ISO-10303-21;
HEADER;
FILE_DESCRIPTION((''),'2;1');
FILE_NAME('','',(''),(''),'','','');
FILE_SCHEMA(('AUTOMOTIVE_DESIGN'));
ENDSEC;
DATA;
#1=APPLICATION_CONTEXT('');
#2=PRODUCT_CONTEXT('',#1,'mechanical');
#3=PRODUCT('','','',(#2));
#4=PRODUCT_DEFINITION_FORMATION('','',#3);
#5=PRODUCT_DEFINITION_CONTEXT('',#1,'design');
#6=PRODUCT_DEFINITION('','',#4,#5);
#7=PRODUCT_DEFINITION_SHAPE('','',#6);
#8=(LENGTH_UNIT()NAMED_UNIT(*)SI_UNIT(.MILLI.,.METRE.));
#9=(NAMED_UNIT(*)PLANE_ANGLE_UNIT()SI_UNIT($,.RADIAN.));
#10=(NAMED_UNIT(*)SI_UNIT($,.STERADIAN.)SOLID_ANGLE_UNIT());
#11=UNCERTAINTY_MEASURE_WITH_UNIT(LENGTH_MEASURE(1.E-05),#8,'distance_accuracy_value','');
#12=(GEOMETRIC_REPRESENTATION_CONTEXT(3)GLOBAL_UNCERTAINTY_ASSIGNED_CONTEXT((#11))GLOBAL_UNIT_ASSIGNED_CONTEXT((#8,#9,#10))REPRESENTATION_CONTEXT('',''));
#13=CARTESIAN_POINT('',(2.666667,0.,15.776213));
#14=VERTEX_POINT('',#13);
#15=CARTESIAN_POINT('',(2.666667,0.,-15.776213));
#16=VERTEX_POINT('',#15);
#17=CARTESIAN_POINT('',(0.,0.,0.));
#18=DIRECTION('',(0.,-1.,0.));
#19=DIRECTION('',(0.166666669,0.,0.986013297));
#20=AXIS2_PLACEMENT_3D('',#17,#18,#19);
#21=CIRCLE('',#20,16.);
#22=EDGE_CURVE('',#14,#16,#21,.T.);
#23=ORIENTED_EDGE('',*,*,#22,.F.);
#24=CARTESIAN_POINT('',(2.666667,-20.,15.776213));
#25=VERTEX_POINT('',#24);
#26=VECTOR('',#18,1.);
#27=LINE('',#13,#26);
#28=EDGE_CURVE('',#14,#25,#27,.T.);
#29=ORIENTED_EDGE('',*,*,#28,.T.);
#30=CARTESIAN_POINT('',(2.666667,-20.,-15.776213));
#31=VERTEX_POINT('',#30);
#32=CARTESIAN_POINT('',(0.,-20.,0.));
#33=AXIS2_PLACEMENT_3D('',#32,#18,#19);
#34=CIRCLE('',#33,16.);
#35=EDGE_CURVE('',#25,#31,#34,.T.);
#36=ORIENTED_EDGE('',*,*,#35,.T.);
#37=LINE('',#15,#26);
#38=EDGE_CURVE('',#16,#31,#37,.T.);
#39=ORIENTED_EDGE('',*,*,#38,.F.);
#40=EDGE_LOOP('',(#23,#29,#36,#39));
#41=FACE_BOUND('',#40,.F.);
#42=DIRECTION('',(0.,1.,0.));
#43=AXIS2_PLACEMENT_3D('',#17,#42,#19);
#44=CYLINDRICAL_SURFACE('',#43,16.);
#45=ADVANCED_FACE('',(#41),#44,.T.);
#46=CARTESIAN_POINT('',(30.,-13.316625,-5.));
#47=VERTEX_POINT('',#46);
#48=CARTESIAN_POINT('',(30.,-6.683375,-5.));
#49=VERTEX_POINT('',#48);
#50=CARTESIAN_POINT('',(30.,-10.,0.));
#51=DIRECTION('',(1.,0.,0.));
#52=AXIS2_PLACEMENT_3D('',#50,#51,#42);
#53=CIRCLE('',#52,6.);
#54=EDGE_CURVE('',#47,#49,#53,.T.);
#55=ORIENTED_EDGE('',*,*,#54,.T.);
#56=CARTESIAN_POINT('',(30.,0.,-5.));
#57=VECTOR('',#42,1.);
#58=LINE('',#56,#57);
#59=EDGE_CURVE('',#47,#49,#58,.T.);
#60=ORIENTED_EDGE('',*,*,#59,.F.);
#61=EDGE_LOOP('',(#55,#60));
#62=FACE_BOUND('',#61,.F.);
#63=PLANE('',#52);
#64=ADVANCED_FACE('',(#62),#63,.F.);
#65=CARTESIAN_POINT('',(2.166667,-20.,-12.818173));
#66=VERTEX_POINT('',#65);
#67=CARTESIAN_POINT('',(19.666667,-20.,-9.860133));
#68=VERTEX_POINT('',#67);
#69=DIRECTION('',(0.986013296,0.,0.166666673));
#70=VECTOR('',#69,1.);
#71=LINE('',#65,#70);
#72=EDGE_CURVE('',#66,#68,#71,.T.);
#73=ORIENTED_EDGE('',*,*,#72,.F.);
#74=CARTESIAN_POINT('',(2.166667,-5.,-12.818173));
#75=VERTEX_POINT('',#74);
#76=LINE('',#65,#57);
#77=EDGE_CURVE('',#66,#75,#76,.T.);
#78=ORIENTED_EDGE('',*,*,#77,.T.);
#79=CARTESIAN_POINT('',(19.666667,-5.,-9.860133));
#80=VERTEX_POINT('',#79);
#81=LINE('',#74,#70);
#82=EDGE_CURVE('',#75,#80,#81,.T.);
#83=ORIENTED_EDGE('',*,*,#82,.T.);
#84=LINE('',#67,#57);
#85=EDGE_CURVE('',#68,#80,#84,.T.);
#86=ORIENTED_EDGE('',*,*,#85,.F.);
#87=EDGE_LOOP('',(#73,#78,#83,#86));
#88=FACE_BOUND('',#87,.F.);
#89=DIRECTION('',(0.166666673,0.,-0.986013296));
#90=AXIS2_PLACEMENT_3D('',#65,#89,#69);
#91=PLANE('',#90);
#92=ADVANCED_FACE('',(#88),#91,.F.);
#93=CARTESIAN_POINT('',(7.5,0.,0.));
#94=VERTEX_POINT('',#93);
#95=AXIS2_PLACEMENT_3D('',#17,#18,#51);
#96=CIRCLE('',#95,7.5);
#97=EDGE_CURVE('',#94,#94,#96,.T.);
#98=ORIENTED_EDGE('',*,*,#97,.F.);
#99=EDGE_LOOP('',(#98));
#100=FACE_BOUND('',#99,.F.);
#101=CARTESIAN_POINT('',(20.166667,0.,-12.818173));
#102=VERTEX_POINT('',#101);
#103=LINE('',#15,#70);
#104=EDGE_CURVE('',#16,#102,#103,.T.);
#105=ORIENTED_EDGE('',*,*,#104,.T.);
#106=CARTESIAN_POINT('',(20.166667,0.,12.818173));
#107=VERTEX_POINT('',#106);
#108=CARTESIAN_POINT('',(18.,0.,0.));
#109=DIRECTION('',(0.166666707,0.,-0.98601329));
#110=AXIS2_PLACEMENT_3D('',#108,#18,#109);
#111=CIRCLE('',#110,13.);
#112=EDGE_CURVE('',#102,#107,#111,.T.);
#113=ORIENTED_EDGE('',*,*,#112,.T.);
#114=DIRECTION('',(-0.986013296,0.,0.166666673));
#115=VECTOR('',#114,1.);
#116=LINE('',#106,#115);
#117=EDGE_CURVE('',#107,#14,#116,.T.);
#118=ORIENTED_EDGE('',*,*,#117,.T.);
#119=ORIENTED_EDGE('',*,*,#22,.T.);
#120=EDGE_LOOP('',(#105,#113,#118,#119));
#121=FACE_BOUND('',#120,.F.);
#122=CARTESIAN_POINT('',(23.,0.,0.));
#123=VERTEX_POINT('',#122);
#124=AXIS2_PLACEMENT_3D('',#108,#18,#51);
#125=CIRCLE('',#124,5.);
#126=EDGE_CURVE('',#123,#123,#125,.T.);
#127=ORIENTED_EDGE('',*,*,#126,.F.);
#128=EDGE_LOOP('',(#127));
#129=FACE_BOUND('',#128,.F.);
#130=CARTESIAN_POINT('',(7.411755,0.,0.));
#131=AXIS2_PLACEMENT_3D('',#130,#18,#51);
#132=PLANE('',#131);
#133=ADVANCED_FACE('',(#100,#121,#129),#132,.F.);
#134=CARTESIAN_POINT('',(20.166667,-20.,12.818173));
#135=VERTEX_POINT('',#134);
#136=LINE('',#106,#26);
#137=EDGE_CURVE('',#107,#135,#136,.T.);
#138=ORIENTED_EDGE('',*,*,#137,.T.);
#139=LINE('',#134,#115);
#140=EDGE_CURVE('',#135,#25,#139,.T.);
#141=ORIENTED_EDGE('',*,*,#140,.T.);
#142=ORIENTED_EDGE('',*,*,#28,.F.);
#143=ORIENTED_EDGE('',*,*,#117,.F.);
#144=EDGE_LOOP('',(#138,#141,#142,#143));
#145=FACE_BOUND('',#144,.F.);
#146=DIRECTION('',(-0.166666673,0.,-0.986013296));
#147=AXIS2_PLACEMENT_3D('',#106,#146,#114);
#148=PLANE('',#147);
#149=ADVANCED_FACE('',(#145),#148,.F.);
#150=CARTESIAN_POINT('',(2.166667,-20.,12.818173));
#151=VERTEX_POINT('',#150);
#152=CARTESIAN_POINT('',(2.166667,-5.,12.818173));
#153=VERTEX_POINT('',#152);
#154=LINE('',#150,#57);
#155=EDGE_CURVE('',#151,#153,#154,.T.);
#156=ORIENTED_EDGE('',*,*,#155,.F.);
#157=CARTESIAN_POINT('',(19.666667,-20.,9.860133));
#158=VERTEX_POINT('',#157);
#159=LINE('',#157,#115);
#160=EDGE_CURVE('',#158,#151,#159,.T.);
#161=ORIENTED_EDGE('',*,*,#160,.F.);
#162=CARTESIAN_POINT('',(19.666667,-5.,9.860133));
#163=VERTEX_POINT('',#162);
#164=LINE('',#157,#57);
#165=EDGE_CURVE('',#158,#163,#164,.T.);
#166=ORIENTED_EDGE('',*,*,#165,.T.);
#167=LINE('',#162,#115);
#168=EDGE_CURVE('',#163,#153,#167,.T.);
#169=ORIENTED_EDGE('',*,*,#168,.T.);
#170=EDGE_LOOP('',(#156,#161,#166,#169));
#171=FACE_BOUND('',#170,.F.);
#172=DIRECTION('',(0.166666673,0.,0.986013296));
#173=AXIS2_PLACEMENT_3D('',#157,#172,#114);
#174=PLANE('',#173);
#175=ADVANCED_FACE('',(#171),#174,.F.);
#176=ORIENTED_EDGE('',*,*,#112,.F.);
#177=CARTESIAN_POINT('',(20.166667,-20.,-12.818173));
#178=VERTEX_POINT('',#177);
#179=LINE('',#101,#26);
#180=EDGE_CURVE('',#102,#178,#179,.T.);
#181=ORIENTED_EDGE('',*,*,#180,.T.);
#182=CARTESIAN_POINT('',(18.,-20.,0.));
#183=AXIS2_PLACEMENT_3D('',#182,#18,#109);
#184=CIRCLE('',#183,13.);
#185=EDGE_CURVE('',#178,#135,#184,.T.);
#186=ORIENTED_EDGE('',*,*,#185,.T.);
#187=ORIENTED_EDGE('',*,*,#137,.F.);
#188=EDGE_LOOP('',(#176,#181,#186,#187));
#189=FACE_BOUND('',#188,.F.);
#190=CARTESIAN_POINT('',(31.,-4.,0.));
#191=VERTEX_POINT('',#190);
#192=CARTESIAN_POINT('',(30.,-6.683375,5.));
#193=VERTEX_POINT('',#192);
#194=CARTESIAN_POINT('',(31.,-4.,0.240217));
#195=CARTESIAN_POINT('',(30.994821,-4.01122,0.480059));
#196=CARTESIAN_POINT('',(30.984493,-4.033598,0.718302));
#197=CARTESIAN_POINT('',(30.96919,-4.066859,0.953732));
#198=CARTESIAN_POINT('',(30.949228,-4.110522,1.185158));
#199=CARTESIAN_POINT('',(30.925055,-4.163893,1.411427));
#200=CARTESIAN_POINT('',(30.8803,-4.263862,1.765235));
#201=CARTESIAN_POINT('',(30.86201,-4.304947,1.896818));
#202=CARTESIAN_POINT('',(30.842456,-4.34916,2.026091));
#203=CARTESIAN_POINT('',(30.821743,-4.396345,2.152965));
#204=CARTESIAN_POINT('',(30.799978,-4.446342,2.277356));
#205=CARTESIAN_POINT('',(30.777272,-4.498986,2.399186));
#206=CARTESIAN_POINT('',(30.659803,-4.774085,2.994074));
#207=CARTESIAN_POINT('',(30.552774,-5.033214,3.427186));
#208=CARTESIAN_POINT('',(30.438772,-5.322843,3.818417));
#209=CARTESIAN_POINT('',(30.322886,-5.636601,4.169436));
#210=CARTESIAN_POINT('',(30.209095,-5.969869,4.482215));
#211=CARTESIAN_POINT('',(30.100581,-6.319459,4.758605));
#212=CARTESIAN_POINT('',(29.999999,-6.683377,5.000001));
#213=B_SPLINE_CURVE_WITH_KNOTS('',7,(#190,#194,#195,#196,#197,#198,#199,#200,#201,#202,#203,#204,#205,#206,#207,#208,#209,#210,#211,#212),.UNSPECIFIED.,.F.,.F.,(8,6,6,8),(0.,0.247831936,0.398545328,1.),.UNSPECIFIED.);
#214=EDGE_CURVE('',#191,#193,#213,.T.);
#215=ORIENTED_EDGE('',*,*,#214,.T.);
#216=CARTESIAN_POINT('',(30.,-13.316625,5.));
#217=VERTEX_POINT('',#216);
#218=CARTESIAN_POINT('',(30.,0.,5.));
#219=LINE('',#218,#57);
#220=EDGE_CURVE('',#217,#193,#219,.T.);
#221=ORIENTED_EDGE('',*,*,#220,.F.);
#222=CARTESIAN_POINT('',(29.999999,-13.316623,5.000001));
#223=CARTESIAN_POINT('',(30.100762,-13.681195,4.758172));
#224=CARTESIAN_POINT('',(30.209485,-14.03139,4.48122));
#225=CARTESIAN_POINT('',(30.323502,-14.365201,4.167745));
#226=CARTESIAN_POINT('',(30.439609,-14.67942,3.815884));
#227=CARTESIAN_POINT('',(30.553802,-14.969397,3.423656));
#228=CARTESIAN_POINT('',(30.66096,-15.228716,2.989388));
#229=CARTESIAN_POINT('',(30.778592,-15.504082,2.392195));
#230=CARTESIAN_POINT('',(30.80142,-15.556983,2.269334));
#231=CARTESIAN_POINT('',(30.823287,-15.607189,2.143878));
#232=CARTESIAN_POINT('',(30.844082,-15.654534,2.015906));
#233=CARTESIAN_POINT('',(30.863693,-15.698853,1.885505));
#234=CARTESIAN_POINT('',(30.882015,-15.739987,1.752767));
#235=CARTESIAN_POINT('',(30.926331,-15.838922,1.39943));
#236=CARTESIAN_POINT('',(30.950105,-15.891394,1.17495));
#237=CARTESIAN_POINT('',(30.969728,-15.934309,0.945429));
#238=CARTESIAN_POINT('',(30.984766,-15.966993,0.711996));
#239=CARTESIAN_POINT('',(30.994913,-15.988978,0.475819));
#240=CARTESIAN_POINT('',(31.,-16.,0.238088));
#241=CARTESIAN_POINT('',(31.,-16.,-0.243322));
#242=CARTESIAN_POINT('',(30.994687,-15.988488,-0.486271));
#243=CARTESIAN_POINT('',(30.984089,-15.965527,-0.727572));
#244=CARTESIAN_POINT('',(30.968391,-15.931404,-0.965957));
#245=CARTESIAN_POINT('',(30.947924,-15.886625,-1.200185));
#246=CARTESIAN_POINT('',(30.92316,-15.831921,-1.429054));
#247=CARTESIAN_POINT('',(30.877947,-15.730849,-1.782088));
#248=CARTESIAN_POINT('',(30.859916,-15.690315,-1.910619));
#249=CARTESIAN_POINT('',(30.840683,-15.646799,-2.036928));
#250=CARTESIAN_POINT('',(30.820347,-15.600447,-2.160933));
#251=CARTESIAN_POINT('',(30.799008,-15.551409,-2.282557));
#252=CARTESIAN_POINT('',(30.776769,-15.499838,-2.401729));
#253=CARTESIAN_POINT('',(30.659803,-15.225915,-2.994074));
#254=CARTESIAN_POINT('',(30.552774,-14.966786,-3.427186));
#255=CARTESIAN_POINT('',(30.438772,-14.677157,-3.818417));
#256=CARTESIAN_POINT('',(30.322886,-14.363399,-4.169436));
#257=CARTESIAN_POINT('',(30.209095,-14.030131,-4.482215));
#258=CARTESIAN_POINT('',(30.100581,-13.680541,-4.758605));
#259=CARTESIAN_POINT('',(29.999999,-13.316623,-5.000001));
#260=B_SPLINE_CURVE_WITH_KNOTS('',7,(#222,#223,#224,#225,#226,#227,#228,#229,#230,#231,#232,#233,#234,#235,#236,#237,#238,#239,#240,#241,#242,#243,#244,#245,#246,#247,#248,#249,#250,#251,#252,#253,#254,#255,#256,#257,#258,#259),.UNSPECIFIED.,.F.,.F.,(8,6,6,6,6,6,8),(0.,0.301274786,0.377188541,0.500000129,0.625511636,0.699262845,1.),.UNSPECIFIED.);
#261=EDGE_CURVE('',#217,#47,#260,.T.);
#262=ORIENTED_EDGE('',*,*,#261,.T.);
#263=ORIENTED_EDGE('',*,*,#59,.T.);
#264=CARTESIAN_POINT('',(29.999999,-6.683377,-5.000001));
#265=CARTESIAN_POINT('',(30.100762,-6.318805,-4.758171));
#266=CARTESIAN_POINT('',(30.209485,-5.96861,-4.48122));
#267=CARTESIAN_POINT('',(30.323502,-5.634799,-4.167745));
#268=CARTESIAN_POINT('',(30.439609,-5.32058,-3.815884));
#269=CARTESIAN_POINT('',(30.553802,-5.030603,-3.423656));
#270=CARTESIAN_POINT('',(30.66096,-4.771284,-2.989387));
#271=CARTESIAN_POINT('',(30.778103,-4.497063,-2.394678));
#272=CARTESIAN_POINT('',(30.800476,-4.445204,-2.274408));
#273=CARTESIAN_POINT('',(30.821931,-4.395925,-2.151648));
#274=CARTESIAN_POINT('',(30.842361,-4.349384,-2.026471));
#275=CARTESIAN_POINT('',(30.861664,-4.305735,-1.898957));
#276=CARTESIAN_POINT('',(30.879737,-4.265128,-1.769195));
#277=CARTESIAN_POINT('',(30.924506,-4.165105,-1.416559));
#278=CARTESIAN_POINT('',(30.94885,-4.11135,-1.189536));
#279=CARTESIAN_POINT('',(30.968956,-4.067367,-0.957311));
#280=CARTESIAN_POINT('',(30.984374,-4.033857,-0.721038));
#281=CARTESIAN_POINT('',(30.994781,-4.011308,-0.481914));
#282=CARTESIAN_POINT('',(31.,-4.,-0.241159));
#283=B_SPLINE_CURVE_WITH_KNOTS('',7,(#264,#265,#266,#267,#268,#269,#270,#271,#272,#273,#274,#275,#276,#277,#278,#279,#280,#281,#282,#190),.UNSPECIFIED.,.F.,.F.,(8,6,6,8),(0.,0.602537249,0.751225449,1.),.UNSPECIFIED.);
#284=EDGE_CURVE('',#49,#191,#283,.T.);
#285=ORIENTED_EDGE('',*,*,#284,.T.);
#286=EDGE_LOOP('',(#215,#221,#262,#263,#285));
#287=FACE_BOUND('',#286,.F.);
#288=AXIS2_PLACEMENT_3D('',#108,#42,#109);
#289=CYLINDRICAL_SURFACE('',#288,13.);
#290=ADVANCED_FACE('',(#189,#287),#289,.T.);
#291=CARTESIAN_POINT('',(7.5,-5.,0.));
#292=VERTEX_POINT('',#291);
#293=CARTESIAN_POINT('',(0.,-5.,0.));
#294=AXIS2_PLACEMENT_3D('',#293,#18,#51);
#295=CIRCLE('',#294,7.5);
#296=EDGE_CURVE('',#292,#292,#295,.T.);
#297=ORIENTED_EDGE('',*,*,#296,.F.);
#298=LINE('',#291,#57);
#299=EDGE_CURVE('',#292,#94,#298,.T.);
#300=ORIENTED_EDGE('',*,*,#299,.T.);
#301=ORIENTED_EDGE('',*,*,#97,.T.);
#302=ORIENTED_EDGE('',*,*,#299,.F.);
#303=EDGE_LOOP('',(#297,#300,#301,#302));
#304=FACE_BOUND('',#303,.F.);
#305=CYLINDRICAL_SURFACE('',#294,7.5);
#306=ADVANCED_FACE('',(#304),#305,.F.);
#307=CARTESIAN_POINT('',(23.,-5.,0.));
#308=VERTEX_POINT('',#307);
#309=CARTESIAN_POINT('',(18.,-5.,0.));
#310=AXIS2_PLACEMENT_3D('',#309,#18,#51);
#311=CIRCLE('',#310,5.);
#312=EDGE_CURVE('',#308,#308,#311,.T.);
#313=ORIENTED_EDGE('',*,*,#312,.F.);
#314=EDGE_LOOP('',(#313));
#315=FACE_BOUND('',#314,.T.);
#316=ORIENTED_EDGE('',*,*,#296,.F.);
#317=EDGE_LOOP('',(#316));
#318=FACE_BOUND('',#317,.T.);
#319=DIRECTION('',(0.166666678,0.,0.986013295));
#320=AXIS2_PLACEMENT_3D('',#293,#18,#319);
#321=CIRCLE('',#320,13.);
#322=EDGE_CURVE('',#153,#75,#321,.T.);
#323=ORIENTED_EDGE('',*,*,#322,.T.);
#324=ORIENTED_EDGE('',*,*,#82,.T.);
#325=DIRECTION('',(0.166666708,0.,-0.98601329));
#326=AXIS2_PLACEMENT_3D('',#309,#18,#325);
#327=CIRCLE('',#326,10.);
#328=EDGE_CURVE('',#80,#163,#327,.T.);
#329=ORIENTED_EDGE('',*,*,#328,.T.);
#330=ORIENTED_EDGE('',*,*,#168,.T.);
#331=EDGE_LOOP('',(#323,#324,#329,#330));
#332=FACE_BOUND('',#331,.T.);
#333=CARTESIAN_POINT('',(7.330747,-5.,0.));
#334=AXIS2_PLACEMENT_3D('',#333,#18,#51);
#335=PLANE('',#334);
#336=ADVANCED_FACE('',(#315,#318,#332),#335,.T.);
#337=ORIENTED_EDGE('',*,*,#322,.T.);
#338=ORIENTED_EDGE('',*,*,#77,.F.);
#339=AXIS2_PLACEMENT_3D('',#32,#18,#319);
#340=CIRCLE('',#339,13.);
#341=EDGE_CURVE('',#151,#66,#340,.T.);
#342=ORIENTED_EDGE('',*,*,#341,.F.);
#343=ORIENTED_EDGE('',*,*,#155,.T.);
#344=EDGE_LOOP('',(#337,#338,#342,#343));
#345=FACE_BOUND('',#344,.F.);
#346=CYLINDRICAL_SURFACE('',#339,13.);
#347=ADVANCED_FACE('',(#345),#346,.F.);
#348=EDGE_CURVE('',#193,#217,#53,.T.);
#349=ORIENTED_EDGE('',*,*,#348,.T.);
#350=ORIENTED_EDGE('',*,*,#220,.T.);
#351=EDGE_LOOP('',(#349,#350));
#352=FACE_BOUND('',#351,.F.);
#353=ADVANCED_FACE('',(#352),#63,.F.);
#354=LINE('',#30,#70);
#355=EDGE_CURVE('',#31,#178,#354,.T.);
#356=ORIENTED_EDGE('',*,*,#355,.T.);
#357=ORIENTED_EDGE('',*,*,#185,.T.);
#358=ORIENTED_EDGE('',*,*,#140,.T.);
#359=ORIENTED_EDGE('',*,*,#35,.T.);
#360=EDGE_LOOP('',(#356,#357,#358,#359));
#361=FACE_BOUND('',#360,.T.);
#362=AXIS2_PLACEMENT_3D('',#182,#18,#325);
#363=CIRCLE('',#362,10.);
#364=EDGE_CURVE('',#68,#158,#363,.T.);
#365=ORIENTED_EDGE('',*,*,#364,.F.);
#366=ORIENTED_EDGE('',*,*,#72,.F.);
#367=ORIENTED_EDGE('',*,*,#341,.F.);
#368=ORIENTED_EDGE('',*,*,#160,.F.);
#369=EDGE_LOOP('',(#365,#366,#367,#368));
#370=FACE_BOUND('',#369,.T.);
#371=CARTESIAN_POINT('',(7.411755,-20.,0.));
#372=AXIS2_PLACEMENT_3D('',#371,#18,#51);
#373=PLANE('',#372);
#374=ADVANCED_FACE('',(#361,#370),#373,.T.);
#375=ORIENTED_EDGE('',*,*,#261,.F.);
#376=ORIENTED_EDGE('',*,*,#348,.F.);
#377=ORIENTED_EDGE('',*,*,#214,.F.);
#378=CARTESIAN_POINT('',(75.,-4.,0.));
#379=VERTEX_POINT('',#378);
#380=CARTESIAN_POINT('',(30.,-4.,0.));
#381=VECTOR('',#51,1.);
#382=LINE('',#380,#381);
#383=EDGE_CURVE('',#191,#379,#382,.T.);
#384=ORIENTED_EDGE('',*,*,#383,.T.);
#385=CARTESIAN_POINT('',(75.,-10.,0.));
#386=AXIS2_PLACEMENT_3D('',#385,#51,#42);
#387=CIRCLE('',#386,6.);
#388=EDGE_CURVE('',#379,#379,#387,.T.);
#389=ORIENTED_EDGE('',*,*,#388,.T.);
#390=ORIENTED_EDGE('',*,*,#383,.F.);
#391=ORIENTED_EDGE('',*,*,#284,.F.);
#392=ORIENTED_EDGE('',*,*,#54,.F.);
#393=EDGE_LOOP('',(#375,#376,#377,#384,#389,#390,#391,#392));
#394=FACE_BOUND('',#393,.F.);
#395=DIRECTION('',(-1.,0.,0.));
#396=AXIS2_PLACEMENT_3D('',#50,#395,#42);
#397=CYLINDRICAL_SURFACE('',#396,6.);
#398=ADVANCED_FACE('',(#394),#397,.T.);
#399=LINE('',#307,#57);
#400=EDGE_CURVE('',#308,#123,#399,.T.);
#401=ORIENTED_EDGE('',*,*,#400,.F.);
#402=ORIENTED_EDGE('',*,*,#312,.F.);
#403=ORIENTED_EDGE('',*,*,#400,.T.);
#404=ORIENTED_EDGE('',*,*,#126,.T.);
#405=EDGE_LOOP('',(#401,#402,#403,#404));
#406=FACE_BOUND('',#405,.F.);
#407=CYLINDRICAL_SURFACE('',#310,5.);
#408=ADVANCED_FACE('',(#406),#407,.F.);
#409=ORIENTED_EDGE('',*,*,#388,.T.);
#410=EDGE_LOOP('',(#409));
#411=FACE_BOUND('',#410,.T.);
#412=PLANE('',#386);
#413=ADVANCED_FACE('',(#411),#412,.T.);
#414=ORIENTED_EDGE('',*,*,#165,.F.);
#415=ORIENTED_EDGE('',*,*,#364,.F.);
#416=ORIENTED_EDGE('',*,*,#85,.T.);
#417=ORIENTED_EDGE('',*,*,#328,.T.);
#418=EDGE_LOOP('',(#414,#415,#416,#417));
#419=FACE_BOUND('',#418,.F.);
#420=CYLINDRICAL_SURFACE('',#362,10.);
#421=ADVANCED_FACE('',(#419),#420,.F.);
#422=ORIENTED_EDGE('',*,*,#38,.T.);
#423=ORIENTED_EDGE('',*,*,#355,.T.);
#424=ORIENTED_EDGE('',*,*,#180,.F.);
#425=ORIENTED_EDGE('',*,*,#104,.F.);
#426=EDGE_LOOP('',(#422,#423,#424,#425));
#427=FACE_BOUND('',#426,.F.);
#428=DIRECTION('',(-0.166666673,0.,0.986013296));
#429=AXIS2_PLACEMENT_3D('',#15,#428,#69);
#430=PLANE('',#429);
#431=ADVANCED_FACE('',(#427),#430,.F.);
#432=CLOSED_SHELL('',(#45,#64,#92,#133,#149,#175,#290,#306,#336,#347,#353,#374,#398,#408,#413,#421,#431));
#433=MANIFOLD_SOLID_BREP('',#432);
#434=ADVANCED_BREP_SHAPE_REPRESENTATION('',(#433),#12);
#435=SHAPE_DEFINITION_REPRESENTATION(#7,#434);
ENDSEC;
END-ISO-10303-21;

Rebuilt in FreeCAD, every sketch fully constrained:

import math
import FreeCAD as App
import Part
import Sketcher

V = App.Vector
Q = App.Units.Quantity

doc = App.newDocument("Part")
body = doc.addObject("PartDesign::Body", "Body")

sketch1 = doc.addObject("Sketcher::SketchObject", "Sketch")
body.addObject(sketch1)
sketch1.AttachmentSupport = (doc.XZ_Plane, [""])
sketch1.MapMode = "FlatFace"
sketch1.addGeometry([
    Part.ArcOfCircle(Part.Circle(V(0, 0, 0), V(0, 0, 1), 16), math.radians(80.405932), math.radians(279.594068)),
    Part.LineSegment(V(2.666667, -15.776213, 0), V(20.166667, -12.818173, 0)),
    Part.ArcOfCircle(Part.Circle(V(18, 0, 0), V(0, 0, 1), 13), math.radians(-80.405929), math.radians(80.405929)),
    Part.LineSegment(V(20.166667, 12.818173, 0), V(2.666667, 15.776213, 0)),
], False)
sketch1.addConstraint([
    Sketcher.Constraint("Tangent", 0, 2, 1, 1),
    Sketcher.Constraint("Tangent", 1, 2, 2, 1),
    Sketcher.Constraint("Tangent", 2, 2, 3, 1),
    Sketcher.Constraint("Tangent", 3, 2, 0, 1),
    Sketcher.Constraint("Coincident", 0, 3, -1, 1),
    Sketcher.Constraint("PointOnObject", 2, 3, -1),
    Sketcher.Constraint("Radius", 0, Q("16 mm")),
    Sketcher.Constraint("Radius", 2, Q("13 mm")),
    Sketcher.Constraint("DistanceX", -1, 1, 2, 3, Q("18 mm")),
])
pad1 = doc.addObject("PartDesign::Pad", "Pad")
body.addObject(pad1)
pad1.Profile = sketch1
pad1.Length = 20

sketch2 = doc.addObject("Sketcher::SketchObject", "Sketch001")
body.addObject(sketch2)
sketch2.AttachmentSupport = (doc.XZ_Plane, [""])
sketch2.MapMode = "FlatFace"
sketch2.AttachmentOffset = App.Placement(V(0, 0, 20), App.Rotation())
sketch2.addGeometry([
    Part.LineSegment(V(19.666667, 9.860133, 0), V(2.166667, 12.818173, 0)),
    Part.ArcOfCircle(Part.Circle(V(0, 0, 0), V(0, 0, 1), 13), math.radians(80.405931), math.radians(279.594069)),
    Part.LineSegment(V(2.166667, -12.818173, 0), V(19.666667, -9.860133, 0)),
    Part.ArcOfCircle(Part.Circle(V(18, 0, 0), V(0, 0, 1), 10), math.radians(-80.405929), math.radians(80.405929)),
], False)
sketch2.addConstraint([
    Sketcher.Constraint("Tangent", 0, 2, 1, 1),
    Sketcher.Constraint("Tangent", 1, 2, 2, 1),
    Sketcher.Constraint("Tangent", 2, 2, 3, 1),
    Sketcher.Constraint("Tangent", 3, 2, 0, 1),
    Sketcher.Constraint("Coincident", 1, 3, -1, 1),
    Sketcher.Constraint("PointOnObject", 3, 3, -1),
    Sketcher.Constraint("Radius", 1, Q("13 mm")),
    Sketcher.Constraint("Radius", 3, Q("10 mm")),
    Sketcher.Constraint("DistanceX", -1, 1, 3, 3, Q("18 mm")),
])
pocket1 = doc.addObject("PartDesign::Pocket", "Pocket")
body.addObject(pocket1)
pocket1.Profile = sketch2
pocket1.Length = 15

sketch3 = doc.addObject("Sketcher::SketchObject", "Sketch002")
body.addObject(sketch3)
sketch3.AttachmentSupport = (doc.XZ_Plane, [""])
sketch3.MapMode = "FlatFace"
sketch3.AttachmentOffset = App.Placement(V(0, 0, 5), App.Rotation())
sketch3.addGeometry([
    Part.Circle(V(18, 0, 0), V(0, 0, 1), 5),
    Part.Circle(V(0, 0, 0), V(0, 0, 1), 7.5),
], False)
sketch3.addConstraint([
    Sketcher.Constraint("Coincident", 1, 3, -1, 1),
    Sketcher.Constraint("PointOnObject", 0, 3, -1),
    Sketcher.Constraint("Diameter", 0, Q("10 mm")),
    Sketcher.Constraint("Diameter", 1, Q("15 mm")),
    Sketcher.Constraint("DistanceX", -1, 1, 0, 3, Q("18 mm")),
])
pocket2 = doc.addObject("PartDesign::Pocket", "Pocket001")
body.addObject(pocket2)
pocket2.Profile = sketch3
pocket2.Length = 5

sketch4 = doc.addObject("Sketcher::SketchObject", "Sketch003")
body.addObject(sketch4)
sketch4.AttachmentSupport = (doc.YZ_Plane, [""])
sketch4.MapMode = "FlatFace"
sketch4.AttachmentOffset = App.Placement(V(0, 0, 30), App.Rotation())
sketch4.addGeometry(Part.Circle(V(-10, 0, 0), V(0, 0, 1), 6), False)
sketch4.addConstraint([
    Sketcher.Constraint("PointOnObject", 0, 3, -1),
    Sketcher.Constraint("Diameter", 0, Q("12 mm")),
    Sketcher.Constraint("DistanceX", 0, 3, -1, 1, Q("10 mm")),
])
pad2 = doc.addObject("PartDesign::Pad", "Pad001")
body.addObject(pad2)
pad2.Profile = sketch4
pad2.Length = 45

doc.recompute()
